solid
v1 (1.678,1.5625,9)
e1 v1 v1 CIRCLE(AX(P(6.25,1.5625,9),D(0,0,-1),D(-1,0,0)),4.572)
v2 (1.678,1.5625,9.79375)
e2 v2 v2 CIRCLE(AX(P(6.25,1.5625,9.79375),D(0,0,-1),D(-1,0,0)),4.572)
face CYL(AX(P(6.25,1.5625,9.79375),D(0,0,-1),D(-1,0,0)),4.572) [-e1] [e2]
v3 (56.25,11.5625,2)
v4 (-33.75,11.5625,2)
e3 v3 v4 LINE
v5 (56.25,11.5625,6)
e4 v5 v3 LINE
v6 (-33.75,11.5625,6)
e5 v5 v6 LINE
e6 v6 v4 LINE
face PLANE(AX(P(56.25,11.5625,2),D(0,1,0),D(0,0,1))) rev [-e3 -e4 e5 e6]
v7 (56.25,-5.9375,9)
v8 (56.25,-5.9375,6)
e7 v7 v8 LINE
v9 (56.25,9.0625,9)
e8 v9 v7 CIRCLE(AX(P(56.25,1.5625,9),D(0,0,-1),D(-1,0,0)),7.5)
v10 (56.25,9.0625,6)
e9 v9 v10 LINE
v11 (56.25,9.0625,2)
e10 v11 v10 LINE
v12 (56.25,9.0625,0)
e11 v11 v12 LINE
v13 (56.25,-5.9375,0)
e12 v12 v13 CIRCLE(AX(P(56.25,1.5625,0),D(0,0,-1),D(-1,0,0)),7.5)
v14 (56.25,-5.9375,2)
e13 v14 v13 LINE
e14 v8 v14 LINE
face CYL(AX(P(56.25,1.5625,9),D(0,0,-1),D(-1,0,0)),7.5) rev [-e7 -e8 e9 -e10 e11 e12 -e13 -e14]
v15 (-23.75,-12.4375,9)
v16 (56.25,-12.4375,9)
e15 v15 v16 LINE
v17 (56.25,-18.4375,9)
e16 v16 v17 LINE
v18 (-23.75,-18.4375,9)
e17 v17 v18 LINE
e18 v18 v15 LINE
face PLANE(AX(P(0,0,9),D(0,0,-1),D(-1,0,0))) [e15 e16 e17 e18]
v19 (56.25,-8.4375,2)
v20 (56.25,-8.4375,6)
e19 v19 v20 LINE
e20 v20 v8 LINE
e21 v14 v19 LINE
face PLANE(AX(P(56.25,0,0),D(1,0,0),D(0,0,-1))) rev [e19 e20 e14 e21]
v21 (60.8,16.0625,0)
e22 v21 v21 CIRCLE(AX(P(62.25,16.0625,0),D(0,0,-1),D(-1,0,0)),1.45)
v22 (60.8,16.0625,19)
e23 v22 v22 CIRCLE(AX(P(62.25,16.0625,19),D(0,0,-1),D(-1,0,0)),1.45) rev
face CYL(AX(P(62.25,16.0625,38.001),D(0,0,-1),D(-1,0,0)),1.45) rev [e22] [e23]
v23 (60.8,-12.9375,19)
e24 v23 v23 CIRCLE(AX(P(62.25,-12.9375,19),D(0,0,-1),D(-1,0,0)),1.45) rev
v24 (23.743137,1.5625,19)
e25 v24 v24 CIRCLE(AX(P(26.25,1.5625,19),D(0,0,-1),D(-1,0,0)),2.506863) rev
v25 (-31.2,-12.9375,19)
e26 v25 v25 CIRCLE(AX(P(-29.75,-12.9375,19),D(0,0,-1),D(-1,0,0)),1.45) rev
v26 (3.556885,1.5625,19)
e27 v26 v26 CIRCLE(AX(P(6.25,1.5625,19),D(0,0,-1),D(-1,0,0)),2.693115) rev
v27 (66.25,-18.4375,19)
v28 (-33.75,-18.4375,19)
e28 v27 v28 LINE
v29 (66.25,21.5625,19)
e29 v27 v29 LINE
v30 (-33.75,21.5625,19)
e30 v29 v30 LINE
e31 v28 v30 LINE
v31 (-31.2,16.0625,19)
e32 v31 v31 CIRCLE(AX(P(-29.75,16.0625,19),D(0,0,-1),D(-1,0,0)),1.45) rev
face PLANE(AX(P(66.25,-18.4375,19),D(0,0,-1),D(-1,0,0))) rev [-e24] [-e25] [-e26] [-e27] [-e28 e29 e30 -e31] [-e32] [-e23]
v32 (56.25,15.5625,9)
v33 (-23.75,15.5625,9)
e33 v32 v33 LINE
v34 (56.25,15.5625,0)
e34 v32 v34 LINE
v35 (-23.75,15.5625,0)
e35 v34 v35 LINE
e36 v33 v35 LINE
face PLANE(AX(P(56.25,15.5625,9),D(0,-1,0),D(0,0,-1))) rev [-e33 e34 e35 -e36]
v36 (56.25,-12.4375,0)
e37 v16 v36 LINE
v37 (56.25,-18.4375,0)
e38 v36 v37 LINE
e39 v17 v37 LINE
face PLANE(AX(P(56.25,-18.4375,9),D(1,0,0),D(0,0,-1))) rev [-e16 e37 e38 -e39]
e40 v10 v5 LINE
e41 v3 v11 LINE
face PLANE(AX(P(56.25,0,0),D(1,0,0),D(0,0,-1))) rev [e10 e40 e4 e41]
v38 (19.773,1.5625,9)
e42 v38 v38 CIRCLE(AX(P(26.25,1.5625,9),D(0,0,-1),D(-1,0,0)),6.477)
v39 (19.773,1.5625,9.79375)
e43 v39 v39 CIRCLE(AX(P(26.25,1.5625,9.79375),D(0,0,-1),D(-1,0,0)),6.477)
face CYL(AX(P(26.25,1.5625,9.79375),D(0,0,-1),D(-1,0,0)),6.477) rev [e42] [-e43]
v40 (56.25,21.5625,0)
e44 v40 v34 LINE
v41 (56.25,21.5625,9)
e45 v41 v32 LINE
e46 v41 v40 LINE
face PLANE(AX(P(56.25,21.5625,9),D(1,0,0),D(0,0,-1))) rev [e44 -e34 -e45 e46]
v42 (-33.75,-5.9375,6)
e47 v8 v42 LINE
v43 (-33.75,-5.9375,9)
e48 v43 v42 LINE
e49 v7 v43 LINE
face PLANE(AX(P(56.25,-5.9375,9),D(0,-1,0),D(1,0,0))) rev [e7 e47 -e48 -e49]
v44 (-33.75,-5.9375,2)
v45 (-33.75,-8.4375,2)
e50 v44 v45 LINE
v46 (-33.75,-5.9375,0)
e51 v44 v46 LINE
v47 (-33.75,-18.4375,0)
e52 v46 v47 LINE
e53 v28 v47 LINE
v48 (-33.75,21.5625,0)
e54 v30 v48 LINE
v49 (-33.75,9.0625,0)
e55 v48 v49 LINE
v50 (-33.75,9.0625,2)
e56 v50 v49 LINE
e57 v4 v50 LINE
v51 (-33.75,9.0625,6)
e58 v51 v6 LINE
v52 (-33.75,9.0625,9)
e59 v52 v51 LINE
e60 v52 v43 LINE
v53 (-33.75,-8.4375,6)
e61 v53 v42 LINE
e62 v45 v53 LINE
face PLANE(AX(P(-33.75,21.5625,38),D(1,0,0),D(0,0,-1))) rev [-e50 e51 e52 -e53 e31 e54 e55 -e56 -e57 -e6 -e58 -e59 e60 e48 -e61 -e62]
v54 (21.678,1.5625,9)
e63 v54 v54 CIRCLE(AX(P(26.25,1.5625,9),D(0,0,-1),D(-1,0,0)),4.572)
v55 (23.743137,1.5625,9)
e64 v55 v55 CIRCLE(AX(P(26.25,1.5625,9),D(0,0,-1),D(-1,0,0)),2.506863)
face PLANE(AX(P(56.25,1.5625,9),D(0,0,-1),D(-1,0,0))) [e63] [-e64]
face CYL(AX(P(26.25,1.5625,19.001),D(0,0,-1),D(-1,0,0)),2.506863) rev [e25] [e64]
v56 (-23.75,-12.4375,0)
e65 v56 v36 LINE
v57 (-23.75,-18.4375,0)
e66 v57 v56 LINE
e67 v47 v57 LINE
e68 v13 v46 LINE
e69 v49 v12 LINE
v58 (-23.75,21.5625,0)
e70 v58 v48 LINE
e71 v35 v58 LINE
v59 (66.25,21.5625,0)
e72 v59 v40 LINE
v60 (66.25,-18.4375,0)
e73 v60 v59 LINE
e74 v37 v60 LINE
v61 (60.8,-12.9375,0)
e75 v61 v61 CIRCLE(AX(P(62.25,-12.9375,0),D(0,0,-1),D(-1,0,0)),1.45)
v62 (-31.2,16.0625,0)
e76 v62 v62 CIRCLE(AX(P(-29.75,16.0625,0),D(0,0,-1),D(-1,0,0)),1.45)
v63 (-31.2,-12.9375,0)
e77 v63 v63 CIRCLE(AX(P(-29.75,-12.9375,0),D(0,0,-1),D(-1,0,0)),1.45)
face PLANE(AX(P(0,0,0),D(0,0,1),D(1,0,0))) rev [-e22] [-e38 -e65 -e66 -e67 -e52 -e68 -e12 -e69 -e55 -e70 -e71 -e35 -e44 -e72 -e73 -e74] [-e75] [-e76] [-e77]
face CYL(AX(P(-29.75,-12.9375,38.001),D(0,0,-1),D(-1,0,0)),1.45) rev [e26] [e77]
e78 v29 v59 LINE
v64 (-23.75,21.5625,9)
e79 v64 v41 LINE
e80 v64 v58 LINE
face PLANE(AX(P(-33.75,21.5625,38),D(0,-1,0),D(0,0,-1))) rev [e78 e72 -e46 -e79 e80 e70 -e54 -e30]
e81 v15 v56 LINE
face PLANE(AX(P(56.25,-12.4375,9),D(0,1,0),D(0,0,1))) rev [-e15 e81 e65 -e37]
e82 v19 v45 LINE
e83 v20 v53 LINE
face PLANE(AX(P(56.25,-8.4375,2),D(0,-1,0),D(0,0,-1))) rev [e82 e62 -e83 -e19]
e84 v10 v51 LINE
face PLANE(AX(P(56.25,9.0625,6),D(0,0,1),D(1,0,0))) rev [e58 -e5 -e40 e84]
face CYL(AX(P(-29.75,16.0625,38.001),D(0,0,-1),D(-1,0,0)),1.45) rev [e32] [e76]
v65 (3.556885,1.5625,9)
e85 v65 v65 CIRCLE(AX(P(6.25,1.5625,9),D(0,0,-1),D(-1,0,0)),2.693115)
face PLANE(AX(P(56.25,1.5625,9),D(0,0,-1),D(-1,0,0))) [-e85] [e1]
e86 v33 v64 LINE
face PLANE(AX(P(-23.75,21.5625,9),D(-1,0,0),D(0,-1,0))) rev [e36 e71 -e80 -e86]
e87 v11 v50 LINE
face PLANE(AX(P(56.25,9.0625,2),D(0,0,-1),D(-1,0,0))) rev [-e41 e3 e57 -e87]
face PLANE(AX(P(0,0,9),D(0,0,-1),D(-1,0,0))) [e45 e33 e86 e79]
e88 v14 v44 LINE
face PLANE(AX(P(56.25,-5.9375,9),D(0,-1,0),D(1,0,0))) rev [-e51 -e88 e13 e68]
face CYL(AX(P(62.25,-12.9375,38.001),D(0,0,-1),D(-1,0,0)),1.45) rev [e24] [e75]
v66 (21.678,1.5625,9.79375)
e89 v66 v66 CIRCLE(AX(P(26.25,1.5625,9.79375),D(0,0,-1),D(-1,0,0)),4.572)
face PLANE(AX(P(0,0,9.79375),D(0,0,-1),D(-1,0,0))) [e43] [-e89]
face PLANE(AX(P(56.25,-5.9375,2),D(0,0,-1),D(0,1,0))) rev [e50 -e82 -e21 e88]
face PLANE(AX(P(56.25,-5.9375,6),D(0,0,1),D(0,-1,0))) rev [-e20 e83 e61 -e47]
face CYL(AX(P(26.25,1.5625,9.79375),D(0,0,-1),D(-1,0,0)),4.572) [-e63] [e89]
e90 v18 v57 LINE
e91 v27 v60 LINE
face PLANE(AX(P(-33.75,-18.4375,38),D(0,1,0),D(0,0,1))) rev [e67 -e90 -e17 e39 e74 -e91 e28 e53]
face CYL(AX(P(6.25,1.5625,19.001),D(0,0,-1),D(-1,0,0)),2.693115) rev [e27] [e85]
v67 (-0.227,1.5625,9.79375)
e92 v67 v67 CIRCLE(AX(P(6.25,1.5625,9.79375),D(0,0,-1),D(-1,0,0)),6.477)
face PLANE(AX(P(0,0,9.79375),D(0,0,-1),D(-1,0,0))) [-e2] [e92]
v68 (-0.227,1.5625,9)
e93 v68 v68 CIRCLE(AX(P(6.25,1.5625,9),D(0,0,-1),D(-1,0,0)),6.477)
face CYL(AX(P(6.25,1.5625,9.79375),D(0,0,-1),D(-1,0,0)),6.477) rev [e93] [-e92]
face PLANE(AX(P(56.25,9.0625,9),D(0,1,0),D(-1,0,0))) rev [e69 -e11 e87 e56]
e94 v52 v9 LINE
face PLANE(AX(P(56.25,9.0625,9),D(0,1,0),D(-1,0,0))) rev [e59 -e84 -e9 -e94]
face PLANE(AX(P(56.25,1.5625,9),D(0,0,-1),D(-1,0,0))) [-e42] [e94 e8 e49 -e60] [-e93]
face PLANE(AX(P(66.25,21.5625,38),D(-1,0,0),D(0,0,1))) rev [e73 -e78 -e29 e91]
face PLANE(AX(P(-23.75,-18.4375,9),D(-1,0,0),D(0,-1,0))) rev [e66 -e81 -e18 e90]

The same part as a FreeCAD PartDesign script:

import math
import FreeCAD as App
import Part
import Sketcher
Q = App.Units.Quantity


def add_polygon(sketch, points):
    """Adds a closed chain of lines whose ends are joined by coincident constraints."""
    first, n = sketch.GeometryCount, len(points)
    for a, b in zip(points, points[1:] + points[:1]):
        sketch.addGeometry(Part.LineSegment(App.Vector(*a, 0), App.Vector(*b, 0)), False)
    for i in range(n):
        sketch.addConstraint(Sketcher.Constraint("Coincident", first + i, 2, first + (i + 1) % n, 1))

doc = App.newDocument("Part")
params = doc.addObject("Spreadsheet::Sheet", "Params")
for row, (alias, value) in enumerate([
    ("sketch1_width", "100 mm"),
    ("sketch1_height", "40 mm"),
    ("pad1_length", "38 mm"),
    ("sketch2_diameter", "2.9 mm"),
    ("sketch3_diameter", "2.9 mm"),
    ("sketch4_diameter", "2.9 mm"),
    ("sketch5_diameter", "2.9 mm"),
    ("sketch6_width", "100 mm"),
    ("sketch6_height", "19 mm"),
    ("sketch7_radius", "7.5 mm"),
    ("sketch7_width", "80 mm"),
    ("pocket6_length", "9 mm"),
    ("pocket9_length", "0.79375 mm"),
    ("sketch11_width", "10 mm"),
    ("sketch11_height", "15 mm"),
    ("pocket10_length", "9 mm"),
    ("sketch12_height", "4 mm"),
    ("sketch12_width", "2.5 mm"),
    ("pocket11_length", "90 mm"),
    ("sketch13_width", "80 mm"),
    ("sketch13_height", "6 mm"),
    ("pocket12_length", "9 mm"),
], start=1):
    params.set(f"A{row}", alias)
    params.set(f"B{row}", "=" + value)
    params.setAlias(f"B{row}", alias)

body = doc.addObject("PartDesign::Body", "Body")

# Sketch on XY plane
sketch1 = body.newObject("Sketcher::SketchObject", "Sketch")
sketch1.AttachmentSupport = (doc.getObject("XY_Plane"), [""])
sketch1.MapMode = "FlatFace"
add_polygon(sketch1, [(-34, 22), (-34, -18), (66, -18), (66, 22)])  # lines 0-3
sketch1.addConstraint(Sketcher.Constraint("Vertical", 0))
sketch1.addConstraint(Sketcher.Constraint("Horizontal", 1))
sketch1.addConstraint(Sketcher.Constraint("Vertical", 2))
sketch1.addConstraint(Sketcher.Constraint("Horizontal", 3))
sketch1.addConstraint(Sketcher.Constraint("DistanceX", 1, 1, 1, 2, Q("100 mm")))
sketch1.addConstraint(Sketcher.Constraint("DistanceY", 0, 2, 0, 1, Q("40 mm")))
sketch1.addConstraint(Sketcher.Constraint("DistanceX", 0, 2, -1, 1, Q("33.75 mm")))
sketch1.addConstraint(Sketcher.Constraint("DistanceY", 0, 2, -1, 1, Q("18.4375 mm")))
sketch1.setExpression("Constraints[8]", "Params.sketch1_width")
sketch1.setExpression("Constraints[9]", "Params.sketch1_height")
pad1 = body.newObject("PartDesign::Pad", "Pad")
pad1.Profile = sketch1
pad1.setExpression("Length", "Params.pad1_length")

# Sketch on XY plane
sketch2 = body.newObject("Sketcher::SketchObject", "Sketch001")
sketch2.AttachmentSupport = (doc.getObject("XY_Plane"), [""])
sketch2.MapMode = "FlatFace"
sketch2.addGeometry(Part.Circle(App.Vector(62.2, 16.1, 0), App.Vector(0, 0, 1), 1.4), False)
sketch2.addConstraint(Sketcher.Constraint("Diameter", 0, Q("2.9 mm")))
sketch2.addConstraint(Sketcher.Constraint("DistanceX", -1, 1, 0, 3, Q("62.25 mm")))
sketch2.addConstraint(Sketcher.Constraint("DistanceY", -1, 1, 0, 3, Q("16.0625 mm")))
sketch2.setExpression("Constraints[0]", "Params.sketch2_diameter")
pocket1 = body.newObject("PartDesign::Pocket", "Pocket")
pocket1.Profile = sketch2
pocket1.Type = "UpToFirst"
pocket1.Reversed = True

# Sketch on XY plane
sketch3 = body.newObject("Sketcher::SketchObject", "Sketch002")
sketch3.AttachmentSupport = (doc.getObject("XY_Plane"), [""])
sketch3.MapMode = "FlatFace"
sketch3.addGeometry(Part.Circle(App.Vector(62.2, -12.9, 0), App.Vector(0, 0, 1), 1.4), False)
sketch3.addConstraint(Sketcher.Constraint("Diameter", 0, Q("2.9 mm")))
sketch3.addConstraint(Sketcher.Constraint("DistanceX", -1, 1, 0, 3, Q("62.25 mm")))
sketch3.addConstraint(Sketcher.Constraint("DistanceY", 0, 3, -1, 1, Q("12.9375 mm")))
sketch3.setExpression("Constraints[0]", "Params.sketch3_diameter")
pocket2 = body.newObject("PartDesign::Pocket", "Pocket001")
pocket2.Profile = sketch3
pocket2.Type = "UpToFirst"
pocket2.Reversed = True

# Sketch on XY plane
sketch4 = body.newObject("Sketcher::SketchObject", "Sketch003")
sketch4.AttachmentSupport = (doc.getObject("XY_Plane"), [""])
sketch4.MapMode = "FlatFace"
sketch4.addGeometry(Part.Circle(App.Vector(-29.8, 16.1, 0), App.Vector(0, 0, 1), 1.4), False)
sketch4.addConstraint(Sketcher.Constraint("Diameter", 0, Q("2.9 mm")))
sketch4.addConstraint(Sketcher.Constraint("DistanceX", 0, 3, -1, 1, Q("29.75 mm")))
sketch4.addConstraint(Sketcher.Constraint("DistanceY", -1, 1, 0, 3, Q("16.0625 mm")))
sketch4.setExpression("Constraints[0]", "Params.sketch4_diameter")
pocket3 = body.newObject("PartDesign::Pocket", "Pocket002")
pocket3.Profile = sketch4
pocket3.Type = "UpToFirst"
pocket3.Reversed = True

# Sketch on XY plane
sketch5 = body.newObject("Sketcher::SketchObject", "Sketch004")
sketch5.AttachmentSupport = (doc.getObject("XY_Plane"), [""])
sketch5.MapMode = "FlatFace"
sketch5.addGeometry(Part.Circle(App.Vector(-29.8, -12.9, 0), App.Vector(0, 0, 1), 1.4), False)
sketch5.addConstraint(Sketcher.Constraint("Diameter", 0, Q("2.9 mm")))
sketch5.addConstraint(Sketcher.Constraint("DistanceX", 0, 3, -1, 1, Q("29.75 mm")))
sketch5.addConstraint(Sketcher.Constraint("DistanceY", 0, 3, -1, 1, Q("12.9375 mm")))
sketch5.setExpression("Constraints[0]", "Params.sketch5_diameter")
pocket4 = body.newObject("PartDesign::Pocket", "Pocket003")
pocket4.Profile = sketch5
pocket4.Type = "UpToFirst"
pocket4.Reversed = True

# Sketch on XZ plane
sketch6 = body.newObject("Sketcher::SketchObject", "Sketch005")
sketch6.AttachmentSupport = (doc.getObject("XZ_Plane"), [""])
sketch6.MapMode = "FlatFace"
sketch6.AttachmentOffset = App.Placement(App.Vector(0, 0, -21.5625), App.Rotation())
add_polygon(sketch6, [(-34, 19), (-34, 38), (66, 38), (66, 19)])  # lines 0-3
sketch6.addConstraint(Sketcher.Constraint("Vertical", 0))
sketch6.addConstraint(Sketcher.Constraint("Horizontal", 1))
sketch6.addConstraint(Sketcher.Constraint("Vertical", 2))
sketch6.addConstraint(Sketcher.Constraint("Horizontal", 3))
sketch6.addConstraint(Sketcher.Constraint("DistanceX", 1, 1, 1, 2, Q("100 mm")))
sketch6.addConstraint(Sketcher.Constraint("DistanceY", 0, 1, 0, 2, Q("19 mm")))
sketch6.addConstraint(Sketcher.Constraint("DistanceY", -1, 1, 0, 2, Q("38 mm")))
sketch6.addConstraint(Sketcher.Constraint("DistanceX", 0, 2, -1, 1, Q("33.75 mm")))
sketch6.setExpression("Constraints[8]", "Params.sketch6_width")
sketch6.setExpression("Constraints[9]", "Params.sketch6_height")
pocket5 = body.newObject("PartDesign::Pocket", "Pocket004")
pocket5.Profile = sketch6
pocket5.Type = "ThroughAll"
pocket5.Reversed = True

# Sketch on XY plane
sketch7 = body.newObject("Sketcher::SketchObject", "Sketch006")
sketch7.AttachmentSupport = (doc.getObject("XY_Plane"), [""])
sketch7.MapMode = "FlatFace"
sketch7.addGeometry(Part.LineSegment(App.Vector(-24, 9, 0), App.Vector(56, 9, 0)), False)
sketch7.addGeometry(Part.ArcOfCircle(Part.Circle(App.Vector(56, 2, 0), App.Vector(0, 0, 1), 8), math.radians(-90), math.radians(90)), False)
sketch7.addGeometry(Part.LineSegment(App.Vector(56, -6, 0), App.Vector(-24, -6, 0)), False)
sketch7.addGeometry(Part.ArcOfCircle(Part.Circle(App.Vector(-24, 2, 0), App.Vector(0, 0, 1), 8), math.radians(90), math.radians(270)), False)
sketch7.addConstraint(Sketcher.Constraint("Tangent", 0, 2, 1, 2))
sketch7.addConstraint(Sketcher.Constraint("Tangent", 1, 1, 2, 1))
sketch7.addConstraint(Sketcher.Constraint("Tangent", 2, 2, 3, 2))
sketch7.addConstraint(Sketcher.Constraint("Tangent", 3, 1, 0, 1))
sketch7.addConstraint(Sketcher.Constraint("Horizontal", 0))
sketch7.addConstraint(Sketcher.Constraint("Horizontal", 2))
sketch7.addConstraint(Sketcher.Constraint("Radius", 1, Q("7.5 mm")))
sketch7.addConstraint(Sketcher.Constraint("DistanceX", 0, 1, 0, 2, Q("80 mm")))
sketch7.addConstraint(Sketcher.Constraint("DistanceX", -1, 1, 1, 3, Q("56.25 mm")))
sketch7.addConstraint(Sketcher.Constraint("DistanceY", -1, 1, 1, 3, Q("1.5625 mm")))
sketch7.setExpression("Constraints[6]", "Params.sketch7_radius")
sketch7.setExpression("Constraints[7]", "Params.sketch7_width")
pocket6 = body.newObject("PartDesign::Pocket", "Pocket005")
pocket6.Profile = sketch7
pocket6.setExpression("Length", "Params.pocket6_length")
pocket6.Reversed = True

# Sketch on XY plane
sketch8 = body.newObject("Sketcher::SketchObject", "Sketch007")
sketch8.AttachmentSupport = (doc.getObject("XY_Plane"), [""])
sketch8.MapMode = "FlatFace"
sketch8.AttachmentOffset = App.Placement(App.Vector(0, 0, 9), App.Rotation())
sketch8.addGeometry(Part.Circle(App.Vector(26.2, 1.6, 0), App.Vector(0, 0, 1), 2.5), False)
sketch8.addConstraint(Sketcher.Constraint("DistanceX", -1, 1, 0, 3, Q("26.25 mm")))
sketch8.addConstraint(Sketcher.Constraint("Diameter", 0, Q("5.013726 mm")))
sketch8.addConstraint(Sketcher.Constraint("DistanceY", -1, 1, 0, 3, Q("1.5625 mm")))
pocket7 = body.newObject("PartDesign::Pocket", "Pocket006")
pocket7.Profile = sketch8
pocket7.Type = "UpToFirst"
pocket7.Reversed = True

# Sketch on XY plane
sketch9 = body.newObject("Sketcher::SketchObject", "Sketch008")
sketch9.AttachmentSupport = (doc.getObject("XY_Plane"), [""])
sketch9.MapMode = "FlatFace"
sketch9.AttachmentOffset = App.Placement(App.Vector(0, 0, 9), App.Rotation())
sketch9.addGeometry(Part.Circle(App.Vector(6.2, 1.6, 0), App.Vector(0, 0, 1), 2.7), False)
sketch9.addConstraint(Sketcher.Constraint("Diameter", 0, Q("5.386231 mm")))
sketch9.addConstraint(Sketcher.Constraint("DistanceX", -1, 1, 0, 3, Q("6.25 mm")))
sketch9.addConstraint(Sketcher.Constraint("DistanceY", -1, 1, 0, 3, Q("1.5625 mm")))
pocket8 = body.newObject("PartDesign::Pocket", "Pocket007")
pocket8.Profile = sketch9
pocket8.Type = "UpToFirst"
pocket8.Reversed = True

# Sketch on XY plane
sketch10 = body.newObject("Sketcher::SketchObject", "Sketch009")
sketch10.AttachmentSupport = (doc.getObject("XY_Plane"), [""])
sketch10.MapMode = "FlatFace"
sketch10.AttachmentOffset = App.Placement(App.Vector(0, 0, 9), App.Rotation())
sketch10.addGeometry(Part.Circle(App.Vector(26.2, 1.6, 0), App.Vector(0, 0, 1), 6.5), False)
sketch10.addGeometry(Part.Circle(App.Vector(26.2, 1.6, 0), App.Vector(0, 0, 1), 4.6), False)
sketch10.addGeometry(Part.Circle(App.Vector(6.2, 1.6, 0), App.Vector(0, 0, 1), 6.5), False)
sketch10.addGeometry(Part.Circle(App.Vector(6.2, 1.6, 0), App.Vector(0, 0, 1), 4.6), False)
sketch10.addConstraint(Sketcher.Constraint("Coincident", 1, 3, 0, 3))
sketch10.addConstraint(Sketcher.Constraint("Coincident", 3, 3, 2, 3))
sketch10.addConstraint(Sketcher.Constraint("Equal", 0, 2))
sketch10.addConstraint(Sketcher.Constraint("Equal", 1, 3))
sketch10.addConstraint(Sketcher.Constraint("Horizontal", 1, 3, 2, 3))
sketch10.addConstraint(Sketcher.Constraint("Diameter", 0, Q("12.954 mm")))
sketch10.addConstraint(Sketcher.Constraint("Diameter", 1, Q("9.144 mm")))
sketch10.addConstraint(Sketcher.Constraint("DistanceX", 2, 3, 0, 3, Q("20 mm")))
sketch10.addConstraint(Sketcher.Constraint("DistanceX", -1, 1, 0, 3, Q("26.25 mm")))
sketch10.addConstraint(Sketcher.Constraint("DistanceY", -1, 1, 0, 3, Q("1.5625 mm")))
pocket9 = body.newObject("PartDesign::Pocket", "Pocket008")
pocket9.Profile = sketch10
pocket9.setExpression("Length", "Params.pocket9_length")
pocket9.Reversed = True

# Sketch on XY plane
sketch11 = body.newObject("Sketcher::SketchObject", "Sketch010")
sketch11.AttachmentSupport = (doc.getObject("XY_Plane"), [""])
sketch11.MapMode = "FlatFace"
add_polygon(sketch11, [(-24, 9), (-24, -6), (-34, -6), (-34, 9)])  # lines 0-3
sketch11.addConstraint(Sketcher.Constraint("Vertical", 0))
sketch11.addConstraint(Sketcher.Constraint("Horizontal", 1))
sketch11.addConstraint(Sketcher.Constraint("Vertical", 2))
sketch11.addConstraint(Sketcher.Constraint("Horizontal", 3))
sketch11.addConstraint(Sketcher.Constraint("DistanceX", 1, 2, 1, 1, Q("10 mm")))
sketch11.addConstraint(Sketcher.Constraint("DistanceY", 0, 2, 0, 1, Q("15 mm")))
sketch11.addConstraint(Sketcher.Constraint("DistanceX", 0, 2, -1, 1, Q("23.75 mm")))
sketch11.addConstraint(Sketcher.Constraint("DistanceY", 0, 2, -1, 1, Q("5.9375 mm")))
sketch11.setExpression("Constraints[8]", "Params.sketch11_width")
sketch11.setExpression("Constraints[9]", "Params.sketch11_height")
pocket10 = body.newObject("PartDesign::Pocket", "Pocket009")
pocket10.Profile = sketch11
pocket10.setExpression("Length", "Params.pocket10_length")
pocket10.Reversed = True

# Sketch on YZ plane
sketch12 = body.newObject("Sketcher::SketchObject", "Sketch011")
sketch12.AttachmentSupport = (doc.getObject("YZ_Plane"), [""])
sketch12.MapMode = "FlatFace"
sketch12.AttachmentOffset = App.Placement(App.Vector(0, 0, -33.75), App.Rotation())
add_polygon(sketch12, [(11.6, 2), (9.1, 2), (9.1, 6), (11.6, 6)])  # lines 0-3
add_polygon(sketch12, [(-5.9, 2), (-8.4, 2), (-8.4, 6), (-5.9, 6)])  # lines 4-7
sketch12.addConstraint(Sketcher.Constraint("Horizontal", 0))
sketch12.addConstraint(Sketcher.Constraint("Vertical", 1))
sketch12.addConstraint(Sketcher.Constraint("Horizontal", 2))
sketch12.addConstraint(Sketcher.Constraint("Vertical", 3))
sketch12.addConstraint(Sketcher.Constraint("Horizontal", 4))
sketch12.addConstraint(Sketcher.Constraint("Vertical", 5))
sketch12.addConstraint(Sketcher.Constraint("Horizontal", 6))
sketch12.addConstraint(Sketcher.Constraint("Vertical", 7))
sketch12.addConstraint(Sketcher.Constraint("Horizontal", 3, 2, 4, 2))
sketch12.addConstraint(Sketcher.Constraint("Horizontal", 2, 2, 5, 2))
sketch12.addConstraint(Sketcher.Constraint("Equal", 2, 4))
sketch12.addConstraint(Sketcher.Constraint("DistanceY", 1, 1, 1, 2, Q("4 mm")))
sketch12.addConstraint(Sketcher.Constraint("DistanceX", 0, 2, 0, 1, Q("2.5 mm")))
sketch12.addConstraint(Sketcher.Constraint("DistanceY", -1, 1, 0, 2, Q("2 mm")))
sketch12.addConstraint(Sketcher.Constraint("DistanceX", 4, 2, 3, 2, Q("20 mm")))
sketch12.addConstraint(Sketcher.Constraint("DistanceX", -1, 1, 0, 2, Q("9.0625 mm")))
sketch12.setExpression("Constraints[19]", "Params.sketch12_height")
sketch12.setExpression("Constraints[20]", "Params.sketch12_width")
pocket11 = body.newObject("PartDesign::Pocket", "Pocket010")
pocket11.Profile = sketch12
pocket11.setExpression("Length", "Params.pocket11_length")
pocket11.Reversed = True

# Sketch on XY plane
sketch13 = body.newObject("Sketcher::SketchObject", "Sketch012")
sketch13.AttachmentSupport = (doc.getObject("XY_Plane"), [""])
sketch13.MapMode = "FlatFace"
add_polygon(sketch13, [(56, 22), (56, 16), (-24, 16), (-24, 22)])  # lines 0-3
add_polygon(sketch13, [(56, -12), (56, -18), (-24, -18), (-24, -12)])  # lines 4-7
sketch13.addConstraint(Sketcher.Constraint("Vertical", 0))
sketch13.addConstraint(Sketcher.Constraint("Horizontal", 1))
sketch13.addConstraint(Sketcher.Constraint("Vertical", 2))
sketch13.addConstraint(Sketcher.Constraint("Horizontal", 3))
sketch13.addConstraint(Sketcher.Constraint("Vertical", 4))
sketch13.addConstraint(Sketcher.Constraint("Horizontal", 5))
sketch13.addConstraint(Sketcher.Constraint("Vertical", 6))
sketch13.addConstraint(Sketcher.Constraint("Horizontal", 7))
sketch13.addConstraint(Sketcher.Constraint("Vertical", 3, 2, 4, 2))
sketch13.addConstraint(Sketcher.Constraint("Vertical", 2, 2, 5, 2))
sketch13.addConstraint(Sketcher.Constraint("Equal", 2, 4))
sketch13.addConstraint(Sketcher.Constraint("DistanceX", 1, 2, 1, 1, Q("80 mm")))
sketch13.addConstraint(Sketcher.Constraint("DistanceY", 0, 2, 0, 1, Q("6 mm")))
sketch13.addConstraint(Sketcher.Constraint("DistanceY", 4, 2, 0, 2, Q("34 mm")))
sketch13.addConstraint(Sketcher.Constraint("DistanceX", -1, 1, 0, 2, Q("56.25 mm")))
sketch13.addConstraint(Sketcher.Constraint("DistanceY", -1, 1, 0, 2, Q("15.5625 mm")))
sketch13.setExpression("Constraints[19]", "Params.sketch13_width")
sketch13.setExpression("Constraints[20]", "Params.sketch13_height")
pocket12 = body.newObject("PartDesign::Pocket", "Pocket011")
pocket12.Profile = sketch13
pocket12.setExpression("Length", "Params.pocket12_length")
pocket12.Reversed = True

doc.recompute()
